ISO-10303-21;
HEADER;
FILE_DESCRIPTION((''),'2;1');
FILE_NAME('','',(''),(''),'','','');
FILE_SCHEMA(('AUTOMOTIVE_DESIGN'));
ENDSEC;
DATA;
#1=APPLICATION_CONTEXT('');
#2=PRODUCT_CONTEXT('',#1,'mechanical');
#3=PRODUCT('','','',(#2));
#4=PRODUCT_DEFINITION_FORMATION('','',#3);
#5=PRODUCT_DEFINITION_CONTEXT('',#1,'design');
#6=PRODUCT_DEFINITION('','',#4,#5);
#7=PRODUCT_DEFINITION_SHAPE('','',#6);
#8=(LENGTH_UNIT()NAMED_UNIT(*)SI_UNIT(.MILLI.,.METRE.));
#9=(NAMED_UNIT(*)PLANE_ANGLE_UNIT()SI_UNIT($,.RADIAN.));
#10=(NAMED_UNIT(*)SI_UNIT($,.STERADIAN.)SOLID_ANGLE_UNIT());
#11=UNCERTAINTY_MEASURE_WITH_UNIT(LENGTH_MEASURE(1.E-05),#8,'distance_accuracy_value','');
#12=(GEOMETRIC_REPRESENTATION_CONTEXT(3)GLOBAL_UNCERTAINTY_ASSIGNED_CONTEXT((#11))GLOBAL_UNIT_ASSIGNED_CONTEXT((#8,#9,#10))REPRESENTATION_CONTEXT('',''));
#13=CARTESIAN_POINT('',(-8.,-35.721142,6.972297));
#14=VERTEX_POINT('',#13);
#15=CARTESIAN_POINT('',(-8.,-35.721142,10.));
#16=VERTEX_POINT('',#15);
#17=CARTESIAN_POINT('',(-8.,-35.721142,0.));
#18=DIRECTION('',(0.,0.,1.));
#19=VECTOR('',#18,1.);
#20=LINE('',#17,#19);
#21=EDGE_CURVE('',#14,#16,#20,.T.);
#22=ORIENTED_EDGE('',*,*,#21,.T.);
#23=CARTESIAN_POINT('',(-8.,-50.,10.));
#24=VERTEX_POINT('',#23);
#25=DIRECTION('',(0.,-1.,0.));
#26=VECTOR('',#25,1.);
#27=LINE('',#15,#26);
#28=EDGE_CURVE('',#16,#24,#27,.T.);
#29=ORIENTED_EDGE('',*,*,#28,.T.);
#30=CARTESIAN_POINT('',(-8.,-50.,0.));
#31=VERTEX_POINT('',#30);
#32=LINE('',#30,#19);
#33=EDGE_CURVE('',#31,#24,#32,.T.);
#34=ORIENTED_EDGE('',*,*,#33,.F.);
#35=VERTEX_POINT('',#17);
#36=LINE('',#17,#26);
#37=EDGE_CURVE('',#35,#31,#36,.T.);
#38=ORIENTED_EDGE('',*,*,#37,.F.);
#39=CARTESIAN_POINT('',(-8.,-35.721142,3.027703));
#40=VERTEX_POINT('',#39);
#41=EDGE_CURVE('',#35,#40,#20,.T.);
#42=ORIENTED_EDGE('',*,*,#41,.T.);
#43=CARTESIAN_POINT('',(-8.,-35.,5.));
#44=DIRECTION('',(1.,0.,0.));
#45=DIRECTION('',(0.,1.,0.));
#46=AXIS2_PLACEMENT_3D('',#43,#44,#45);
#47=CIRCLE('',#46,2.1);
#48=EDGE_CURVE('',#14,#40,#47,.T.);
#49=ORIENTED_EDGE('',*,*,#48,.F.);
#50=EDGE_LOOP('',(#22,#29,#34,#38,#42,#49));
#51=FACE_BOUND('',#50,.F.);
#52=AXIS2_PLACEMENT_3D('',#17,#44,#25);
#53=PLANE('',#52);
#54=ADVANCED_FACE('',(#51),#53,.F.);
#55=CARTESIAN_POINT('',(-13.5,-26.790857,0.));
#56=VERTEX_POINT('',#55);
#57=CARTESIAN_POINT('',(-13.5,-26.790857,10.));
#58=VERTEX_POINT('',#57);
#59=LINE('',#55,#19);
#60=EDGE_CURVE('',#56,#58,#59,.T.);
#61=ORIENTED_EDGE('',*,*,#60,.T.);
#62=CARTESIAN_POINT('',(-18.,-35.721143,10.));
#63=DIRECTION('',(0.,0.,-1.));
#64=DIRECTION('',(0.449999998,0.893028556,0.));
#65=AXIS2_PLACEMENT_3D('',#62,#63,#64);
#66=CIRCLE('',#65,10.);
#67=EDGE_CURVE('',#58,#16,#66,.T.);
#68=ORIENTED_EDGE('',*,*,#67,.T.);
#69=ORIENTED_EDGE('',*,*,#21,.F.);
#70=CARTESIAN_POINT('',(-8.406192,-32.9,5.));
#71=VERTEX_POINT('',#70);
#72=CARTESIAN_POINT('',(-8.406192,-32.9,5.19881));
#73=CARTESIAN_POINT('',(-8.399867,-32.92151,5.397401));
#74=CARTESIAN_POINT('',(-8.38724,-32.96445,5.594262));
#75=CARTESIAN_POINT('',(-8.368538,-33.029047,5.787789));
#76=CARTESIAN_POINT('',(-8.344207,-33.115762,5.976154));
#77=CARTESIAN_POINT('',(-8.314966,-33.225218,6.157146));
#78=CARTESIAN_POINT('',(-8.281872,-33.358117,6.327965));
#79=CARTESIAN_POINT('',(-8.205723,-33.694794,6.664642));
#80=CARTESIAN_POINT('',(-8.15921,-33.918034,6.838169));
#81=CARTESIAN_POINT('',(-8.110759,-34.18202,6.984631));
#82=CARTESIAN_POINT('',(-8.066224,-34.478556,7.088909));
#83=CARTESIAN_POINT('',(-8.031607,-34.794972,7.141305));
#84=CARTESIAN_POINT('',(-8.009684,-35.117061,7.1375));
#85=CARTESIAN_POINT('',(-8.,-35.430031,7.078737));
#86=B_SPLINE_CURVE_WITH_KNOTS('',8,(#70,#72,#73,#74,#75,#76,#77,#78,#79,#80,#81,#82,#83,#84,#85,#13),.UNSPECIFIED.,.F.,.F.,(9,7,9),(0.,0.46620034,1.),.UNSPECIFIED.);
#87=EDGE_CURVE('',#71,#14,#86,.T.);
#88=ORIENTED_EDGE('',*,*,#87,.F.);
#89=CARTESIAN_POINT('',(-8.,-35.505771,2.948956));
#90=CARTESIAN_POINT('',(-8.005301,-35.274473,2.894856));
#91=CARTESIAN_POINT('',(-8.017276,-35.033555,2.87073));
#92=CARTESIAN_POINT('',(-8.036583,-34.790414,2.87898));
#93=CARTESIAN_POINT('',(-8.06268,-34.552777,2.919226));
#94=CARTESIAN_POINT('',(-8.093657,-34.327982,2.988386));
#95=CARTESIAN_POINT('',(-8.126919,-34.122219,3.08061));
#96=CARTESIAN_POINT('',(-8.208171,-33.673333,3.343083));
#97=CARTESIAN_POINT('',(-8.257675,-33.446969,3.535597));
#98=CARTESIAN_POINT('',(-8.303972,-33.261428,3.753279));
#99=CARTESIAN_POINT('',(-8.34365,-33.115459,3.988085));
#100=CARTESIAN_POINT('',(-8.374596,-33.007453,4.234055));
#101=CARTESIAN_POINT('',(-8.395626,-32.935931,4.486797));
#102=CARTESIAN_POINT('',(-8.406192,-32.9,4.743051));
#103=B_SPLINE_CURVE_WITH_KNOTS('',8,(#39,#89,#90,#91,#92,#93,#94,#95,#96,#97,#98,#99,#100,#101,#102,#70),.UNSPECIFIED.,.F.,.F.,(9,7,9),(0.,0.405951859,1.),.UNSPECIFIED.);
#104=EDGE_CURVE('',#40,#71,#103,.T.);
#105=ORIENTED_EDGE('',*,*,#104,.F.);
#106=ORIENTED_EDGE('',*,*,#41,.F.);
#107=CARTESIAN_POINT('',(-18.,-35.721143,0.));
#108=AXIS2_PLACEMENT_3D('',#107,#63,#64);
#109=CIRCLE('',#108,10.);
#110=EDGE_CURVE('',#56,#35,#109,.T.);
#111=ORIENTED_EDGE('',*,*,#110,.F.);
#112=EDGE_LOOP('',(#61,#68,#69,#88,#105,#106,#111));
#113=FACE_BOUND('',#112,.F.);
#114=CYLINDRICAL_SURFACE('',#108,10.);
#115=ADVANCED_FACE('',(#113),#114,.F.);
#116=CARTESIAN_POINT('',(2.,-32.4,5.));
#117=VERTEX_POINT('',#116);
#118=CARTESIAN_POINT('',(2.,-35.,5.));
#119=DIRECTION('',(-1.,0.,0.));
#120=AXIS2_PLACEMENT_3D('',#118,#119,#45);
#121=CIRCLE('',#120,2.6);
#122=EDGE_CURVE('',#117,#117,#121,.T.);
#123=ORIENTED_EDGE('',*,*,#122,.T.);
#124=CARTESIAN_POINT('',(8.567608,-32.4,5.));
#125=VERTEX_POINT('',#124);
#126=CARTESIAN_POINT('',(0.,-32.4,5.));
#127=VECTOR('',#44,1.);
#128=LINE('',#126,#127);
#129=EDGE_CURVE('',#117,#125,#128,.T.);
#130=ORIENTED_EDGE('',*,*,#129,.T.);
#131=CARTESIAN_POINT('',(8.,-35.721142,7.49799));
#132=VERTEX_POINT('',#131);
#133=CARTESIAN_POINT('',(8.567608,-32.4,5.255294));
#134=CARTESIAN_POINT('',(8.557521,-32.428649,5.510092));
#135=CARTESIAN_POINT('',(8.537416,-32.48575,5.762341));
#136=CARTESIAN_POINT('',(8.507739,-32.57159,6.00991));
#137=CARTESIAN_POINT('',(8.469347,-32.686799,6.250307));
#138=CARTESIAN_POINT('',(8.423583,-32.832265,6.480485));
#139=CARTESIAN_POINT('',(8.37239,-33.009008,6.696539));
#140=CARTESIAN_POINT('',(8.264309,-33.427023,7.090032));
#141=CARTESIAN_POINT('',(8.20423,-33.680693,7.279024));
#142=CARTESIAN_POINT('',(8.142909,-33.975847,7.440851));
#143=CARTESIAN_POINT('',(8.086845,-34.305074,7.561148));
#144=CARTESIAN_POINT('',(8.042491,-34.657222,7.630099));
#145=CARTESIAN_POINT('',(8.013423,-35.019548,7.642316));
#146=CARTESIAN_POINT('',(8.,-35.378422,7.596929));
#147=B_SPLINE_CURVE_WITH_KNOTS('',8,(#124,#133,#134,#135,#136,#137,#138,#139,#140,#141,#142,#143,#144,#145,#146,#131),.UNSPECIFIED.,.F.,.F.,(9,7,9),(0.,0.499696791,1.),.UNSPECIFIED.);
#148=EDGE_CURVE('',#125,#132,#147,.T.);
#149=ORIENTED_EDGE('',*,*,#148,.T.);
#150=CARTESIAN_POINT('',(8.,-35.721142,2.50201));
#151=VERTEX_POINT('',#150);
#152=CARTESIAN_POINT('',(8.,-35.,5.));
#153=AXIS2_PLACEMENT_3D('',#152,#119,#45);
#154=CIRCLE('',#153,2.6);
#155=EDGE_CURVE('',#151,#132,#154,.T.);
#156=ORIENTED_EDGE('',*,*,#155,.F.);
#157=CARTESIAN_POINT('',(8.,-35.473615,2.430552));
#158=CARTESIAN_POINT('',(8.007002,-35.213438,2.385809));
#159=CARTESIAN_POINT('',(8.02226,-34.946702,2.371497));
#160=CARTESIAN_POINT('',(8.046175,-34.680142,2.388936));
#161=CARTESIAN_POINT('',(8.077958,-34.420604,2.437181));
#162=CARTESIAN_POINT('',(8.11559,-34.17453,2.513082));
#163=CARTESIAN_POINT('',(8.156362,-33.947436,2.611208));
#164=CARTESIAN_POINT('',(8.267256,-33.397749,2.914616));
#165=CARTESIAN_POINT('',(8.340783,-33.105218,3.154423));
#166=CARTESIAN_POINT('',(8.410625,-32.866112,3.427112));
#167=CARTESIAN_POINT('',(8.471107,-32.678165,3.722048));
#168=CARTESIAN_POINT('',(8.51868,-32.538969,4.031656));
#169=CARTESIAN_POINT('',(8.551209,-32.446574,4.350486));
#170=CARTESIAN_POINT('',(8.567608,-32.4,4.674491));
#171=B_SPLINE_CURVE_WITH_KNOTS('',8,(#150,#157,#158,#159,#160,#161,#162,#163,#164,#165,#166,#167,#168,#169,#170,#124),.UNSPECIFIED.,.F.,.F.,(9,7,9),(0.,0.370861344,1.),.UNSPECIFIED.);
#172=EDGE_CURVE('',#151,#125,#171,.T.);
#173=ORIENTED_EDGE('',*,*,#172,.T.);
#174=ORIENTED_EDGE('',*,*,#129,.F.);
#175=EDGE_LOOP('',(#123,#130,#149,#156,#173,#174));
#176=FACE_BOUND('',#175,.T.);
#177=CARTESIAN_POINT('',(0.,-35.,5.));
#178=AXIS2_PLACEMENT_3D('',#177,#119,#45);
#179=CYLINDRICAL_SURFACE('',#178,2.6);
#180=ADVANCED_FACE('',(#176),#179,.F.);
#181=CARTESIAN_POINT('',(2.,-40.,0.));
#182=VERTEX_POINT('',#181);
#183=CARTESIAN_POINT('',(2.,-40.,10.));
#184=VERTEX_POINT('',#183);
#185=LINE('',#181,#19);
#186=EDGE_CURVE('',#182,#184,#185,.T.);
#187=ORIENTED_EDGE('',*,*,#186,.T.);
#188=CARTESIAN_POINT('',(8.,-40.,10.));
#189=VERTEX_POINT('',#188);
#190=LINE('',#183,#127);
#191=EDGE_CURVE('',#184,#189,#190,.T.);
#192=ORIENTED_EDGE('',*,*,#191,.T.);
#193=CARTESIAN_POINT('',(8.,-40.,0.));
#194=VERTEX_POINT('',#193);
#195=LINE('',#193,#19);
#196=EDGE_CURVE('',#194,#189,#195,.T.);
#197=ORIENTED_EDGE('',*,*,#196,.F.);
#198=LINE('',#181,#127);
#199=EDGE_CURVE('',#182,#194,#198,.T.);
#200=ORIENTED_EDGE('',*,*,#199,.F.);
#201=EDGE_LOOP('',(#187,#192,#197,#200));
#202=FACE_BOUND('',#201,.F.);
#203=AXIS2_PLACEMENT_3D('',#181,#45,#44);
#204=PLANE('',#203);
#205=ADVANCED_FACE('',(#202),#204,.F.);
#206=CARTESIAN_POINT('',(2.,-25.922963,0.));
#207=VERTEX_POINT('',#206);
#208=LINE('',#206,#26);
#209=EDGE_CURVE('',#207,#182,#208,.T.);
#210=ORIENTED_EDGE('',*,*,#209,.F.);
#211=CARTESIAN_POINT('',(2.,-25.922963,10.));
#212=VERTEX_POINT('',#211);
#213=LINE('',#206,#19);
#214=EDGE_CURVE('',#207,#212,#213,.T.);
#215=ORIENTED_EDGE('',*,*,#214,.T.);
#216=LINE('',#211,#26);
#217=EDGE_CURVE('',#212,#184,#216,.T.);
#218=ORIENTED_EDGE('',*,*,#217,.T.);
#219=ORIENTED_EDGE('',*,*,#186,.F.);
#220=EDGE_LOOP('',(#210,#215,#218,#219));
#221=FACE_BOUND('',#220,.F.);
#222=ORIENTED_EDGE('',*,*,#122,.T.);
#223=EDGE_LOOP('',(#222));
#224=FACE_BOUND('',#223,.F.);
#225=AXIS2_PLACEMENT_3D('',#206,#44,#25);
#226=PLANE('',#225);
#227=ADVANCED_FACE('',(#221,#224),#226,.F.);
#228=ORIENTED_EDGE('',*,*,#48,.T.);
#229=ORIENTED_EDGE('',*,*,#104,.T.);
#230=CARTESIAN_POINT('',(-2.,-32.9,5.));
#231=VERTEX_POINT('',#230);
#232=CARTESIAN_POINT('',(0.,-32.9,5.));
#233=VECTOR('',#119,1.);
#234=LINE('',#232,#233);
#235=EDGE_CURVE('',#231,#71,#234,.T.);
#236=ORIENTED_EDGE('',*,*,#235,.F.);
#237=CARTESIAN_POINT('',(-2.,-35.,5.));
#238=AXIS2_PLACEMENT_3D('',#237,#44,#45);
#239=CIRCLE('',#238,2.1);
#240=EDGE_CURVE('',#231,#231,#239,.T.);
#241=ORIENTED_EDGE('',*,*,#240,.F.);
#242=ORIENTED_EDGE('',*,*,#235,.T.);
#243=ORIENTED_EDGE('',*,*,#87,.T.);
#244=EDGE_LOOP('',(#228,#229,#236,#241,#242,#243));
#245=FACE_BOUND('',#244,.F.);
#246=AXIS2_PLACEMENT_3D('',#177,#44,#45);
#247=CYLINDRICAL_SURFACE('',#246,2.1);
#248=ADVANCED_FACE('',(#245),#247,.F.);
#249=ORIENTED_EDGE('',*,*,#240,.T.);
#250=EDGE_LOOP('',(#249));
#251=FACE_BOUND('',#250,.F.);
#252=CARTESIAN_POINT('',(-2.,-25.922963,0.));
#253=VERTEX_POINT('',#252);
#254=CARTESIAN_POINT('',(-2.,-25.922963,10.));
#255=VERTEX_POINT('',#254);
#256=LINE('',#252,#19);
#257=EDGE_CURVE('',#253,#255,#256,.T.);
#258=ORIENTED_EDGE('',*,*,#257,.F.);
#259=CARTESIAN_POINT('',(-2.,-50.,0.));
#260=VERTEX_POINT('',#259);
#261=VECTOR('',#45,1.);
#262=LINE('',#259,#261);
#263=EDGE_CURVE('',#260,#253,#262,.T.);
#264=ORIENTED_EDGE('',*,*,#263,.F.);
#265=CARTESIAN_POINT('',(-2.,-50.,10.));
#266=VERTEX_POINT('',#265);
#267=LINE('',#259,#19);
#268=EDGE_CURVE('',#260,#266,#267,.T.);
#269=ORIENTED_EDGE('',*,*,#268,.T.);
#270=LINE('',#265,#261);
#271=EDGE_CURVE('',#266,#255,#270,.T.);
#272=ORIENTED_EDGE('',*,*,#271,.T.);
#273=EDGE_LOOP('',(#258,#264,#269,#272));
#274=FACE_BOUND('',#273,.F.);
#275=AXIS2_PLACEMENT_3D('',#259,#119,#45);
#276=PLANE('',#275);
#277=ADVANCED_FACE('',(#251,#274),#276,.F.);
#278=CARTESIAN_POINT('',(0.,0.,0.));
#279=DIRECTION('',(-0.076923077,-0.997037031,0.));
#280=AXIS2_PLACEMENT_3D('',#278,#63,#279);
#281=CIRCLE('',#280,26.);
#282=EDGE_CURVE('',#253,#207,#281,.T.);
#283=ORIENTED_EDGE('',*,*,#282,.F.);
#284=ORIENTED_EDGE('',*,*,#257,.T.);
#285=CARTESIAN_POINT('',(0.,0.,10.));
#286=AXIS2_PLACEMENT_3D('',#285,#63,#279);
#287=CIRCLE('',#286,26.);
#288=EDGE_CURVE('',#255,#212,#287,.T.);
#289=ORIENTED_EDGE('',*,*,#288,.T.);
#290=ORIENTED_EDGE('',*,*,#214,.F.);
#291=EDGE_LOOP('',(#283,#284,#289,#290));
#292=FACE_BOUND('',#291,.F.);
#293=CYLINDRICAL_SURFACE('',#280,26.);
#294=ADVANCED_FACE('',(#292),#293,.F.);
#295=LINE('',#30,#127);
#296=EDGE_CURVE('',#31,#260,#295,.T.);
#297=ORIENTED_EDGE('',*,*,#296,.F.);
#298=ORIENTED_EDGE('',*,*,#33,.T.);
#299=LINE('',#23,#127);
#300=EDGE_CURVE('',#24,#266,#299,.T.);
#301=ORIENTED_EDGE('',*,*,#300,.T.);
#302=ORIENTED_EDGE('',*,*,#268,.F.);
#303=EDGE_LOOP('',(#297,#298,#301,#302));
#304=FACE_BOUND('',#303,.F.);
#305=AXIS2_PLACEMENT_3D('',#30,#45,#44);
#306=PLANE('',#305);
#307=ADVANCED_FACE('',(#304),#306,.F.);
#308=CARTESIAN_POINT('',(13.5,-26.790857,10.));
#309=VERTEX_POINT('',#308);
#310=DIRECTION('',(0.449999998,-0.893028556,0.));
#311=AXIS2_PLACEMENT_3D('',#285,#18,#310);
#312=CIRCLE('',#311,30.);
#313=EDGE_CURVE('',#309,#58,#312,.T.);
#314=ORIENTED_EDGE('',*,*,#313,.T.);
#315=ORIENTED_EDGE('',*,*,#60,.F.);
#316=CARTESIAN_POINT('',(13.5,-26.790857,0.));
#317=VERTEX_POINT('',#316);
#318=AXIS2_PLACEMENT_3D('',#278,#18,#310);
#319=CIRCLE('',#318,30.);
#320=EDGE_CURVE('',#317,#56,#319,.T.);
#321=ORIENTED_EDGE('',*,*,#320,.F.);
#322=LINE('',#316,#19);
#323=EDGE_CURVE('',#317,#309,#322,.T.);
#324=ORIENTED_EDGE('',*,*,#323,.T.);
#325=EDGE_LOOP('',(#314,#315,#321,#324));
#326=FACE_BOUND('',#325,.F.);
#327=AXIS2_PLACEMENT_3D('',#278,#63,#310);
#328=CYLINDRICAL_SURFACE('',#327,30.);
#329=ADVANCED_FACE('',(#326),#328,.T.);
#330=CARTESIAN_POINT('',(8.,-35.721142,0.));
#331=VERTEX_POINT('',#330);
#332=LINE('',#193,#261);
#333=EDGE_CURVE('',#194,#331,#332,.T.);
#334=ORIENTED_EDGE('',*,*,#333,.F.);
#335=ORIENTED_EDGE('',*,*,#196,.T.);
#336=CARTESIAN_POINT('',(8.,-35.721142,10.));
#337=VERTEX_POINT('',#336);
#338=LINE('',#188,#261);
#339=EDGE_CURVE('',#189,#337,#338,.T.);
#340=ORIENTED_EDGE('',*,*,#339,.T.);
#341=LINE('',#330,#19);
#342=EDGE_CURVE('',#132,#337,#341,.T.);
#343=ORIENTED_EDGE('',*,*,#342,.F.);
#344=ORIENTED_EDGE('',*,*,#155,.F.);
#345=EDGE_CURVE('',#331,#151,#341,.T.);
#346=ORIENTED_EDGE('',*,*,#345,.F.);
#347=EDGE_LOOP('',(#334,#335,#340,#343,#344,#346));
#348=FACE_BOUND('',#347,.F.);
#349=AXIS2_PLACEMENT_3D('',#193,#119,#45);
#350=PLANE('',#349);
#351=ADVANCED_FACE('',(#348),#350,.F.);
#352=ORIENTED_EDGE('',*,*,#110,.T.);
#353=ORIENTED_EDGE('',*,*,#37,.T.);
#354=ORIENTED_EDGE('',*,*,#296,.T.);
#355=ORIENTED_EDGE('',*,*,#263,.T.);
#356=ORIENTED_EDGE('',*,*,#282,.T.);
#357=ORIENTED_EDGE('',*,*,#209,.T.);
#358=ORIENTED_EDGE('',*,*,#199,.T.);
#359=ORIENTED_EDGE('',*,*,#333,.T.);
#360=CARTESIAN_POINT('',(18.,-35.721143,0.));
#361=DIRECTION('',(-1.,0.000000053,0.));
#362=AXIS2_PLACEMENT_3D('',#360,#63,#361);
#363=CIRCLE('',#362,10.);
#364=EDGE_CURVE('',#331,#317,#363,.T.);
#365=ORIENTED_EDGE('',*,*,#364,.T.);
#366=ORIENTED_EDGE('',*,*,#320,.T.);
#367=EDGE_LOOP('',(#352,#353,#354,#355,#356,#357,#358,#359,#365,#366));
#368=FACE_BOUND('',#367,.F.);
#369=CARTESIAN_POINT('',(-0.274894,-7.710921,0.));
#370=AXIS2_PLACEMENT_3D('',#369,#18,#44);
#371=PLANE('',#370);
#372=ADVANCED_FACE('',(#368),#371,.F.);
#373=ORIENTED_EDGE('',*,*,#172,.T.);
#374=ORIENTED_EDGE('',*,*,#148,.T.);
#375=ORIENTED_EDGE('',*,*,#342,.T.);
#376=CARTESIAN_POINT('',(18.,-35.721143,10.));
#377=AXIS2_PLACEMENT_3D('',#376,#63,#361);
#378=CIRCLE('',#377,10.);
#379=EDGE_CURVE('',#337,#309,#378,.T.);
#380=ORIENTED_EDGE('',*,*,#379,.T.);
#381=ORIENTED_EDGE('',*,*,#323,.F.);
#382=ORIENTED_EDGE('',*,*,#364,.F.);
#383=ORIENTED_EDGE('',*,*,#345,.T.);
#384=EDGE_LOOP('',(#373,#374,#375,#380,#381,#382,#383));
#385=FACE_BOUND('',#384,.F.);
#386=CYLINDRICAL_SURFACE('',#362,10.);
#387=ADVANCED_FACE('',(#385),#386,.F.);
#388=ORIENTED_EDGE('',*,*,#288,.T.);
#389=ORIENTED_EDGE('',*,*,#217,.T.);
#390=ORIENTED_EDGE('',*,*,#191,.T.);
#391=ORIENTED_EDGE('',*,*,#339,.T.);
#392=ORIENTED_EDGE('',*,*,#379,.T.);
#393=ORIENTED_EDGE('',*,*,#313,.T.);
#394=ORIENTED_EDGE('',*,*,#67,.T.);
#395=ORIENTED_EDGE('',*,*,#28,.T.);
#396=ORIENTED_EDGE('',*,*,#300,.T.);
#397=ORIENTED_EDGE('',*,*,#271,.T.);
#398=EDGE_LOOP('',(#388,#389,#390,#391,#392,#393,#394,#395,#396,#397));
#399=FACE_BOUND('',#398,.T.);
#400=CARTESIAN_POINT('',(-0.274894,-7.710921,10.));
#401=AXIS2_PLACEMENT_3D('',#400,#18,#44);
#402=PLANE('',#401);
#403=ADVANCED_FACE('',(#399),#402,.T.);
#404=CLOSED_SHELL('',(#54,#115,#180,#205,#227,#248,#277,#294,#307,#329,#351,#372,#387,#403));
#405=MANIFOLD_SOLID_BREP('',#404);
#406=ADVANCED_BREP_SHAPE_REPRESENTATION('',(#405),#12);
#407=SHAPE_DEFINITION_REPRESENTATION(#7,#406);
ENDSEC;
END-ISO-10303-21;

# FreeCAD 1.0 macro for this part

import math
import FreeCAD as App
import Part
import Sketcher
Q = App.Units.Quantity

doc = App.newDocument("Part")
body = doc.addObject("PartDesign::Body", "Body")

sketch1 = body.newObject("Sketcher::SketchObject", "Sketch")
sketch1.AttachmentSupport = (doc.getObject("XY_Plane"), [""])
sketch1.MapMode = "FlatFace"
sketch1.addGeometry([
    Part.ArcOfCircle(Part.Circle(App.Vector(0, 0, 0), App.Vector(0, 0, 1), 26), math.radians(-86), math.radians(266)),
    Part.LineSegment(App.Vector(2, -25.9, 0), App.Vector(2, -40, 0)),
    Part.LineSegment(App.Vector(2, -40, 0), App.Vector(8, -40, 0)),
    Part.LineSegment(App.Vector(8, -40, 0), App.Vector(8, -35.7, 0)),
    Part.ArcOfCircle(Part.Circle(App.Vector(18, -35.7, 0), App.Vector(0, 0, 1), 10), math.radians(117), math.radians(180)),
    Part.ArcOfCircle(Part.Circle(App.Vector(0, 0, 0), App.Vector(0, 0, 1), 30), math.radians(-63), math.radians(243)),
    Part.ArcOfCircle(Part.Circle(App.Vector(-18, -35.7, 0), App.Vector(0, 0, 1), 10), math.radians(0), math.radians(63)),
    Part.LineSegment(App.Vector(-8, -35.7, 0), App.Vector(-8, -50, 0)),
    Part.LineSegment(App.Vector(-8, -50, 0), App.Vector(-2, -50, 0)),
    Part.LineSegment(App.Vector(-2, -50, 0), App.Vector(-2, -25.9, 0)),
], False)
sketch1.addConstraint([
    Sketcher.Constraint("Coincident", 0, 1, 1, 1),
    Sketcher.Constraint("Coincident", 1, 2, 2, 1),
    Sketcher.Constraint("Coincident", 2, 2, 3, 1),
    Sketcher.Constraint("Tangent", 3, 2, 4, 2),
    Sketcher.Constraint("Tangent", 4, 1, 5, 1),
    Sketcher.Constraint("Tangent", 5, 2, 6, 2),
    Sketcher.Constraint("Tangent", 6, 1, 7, 1),
    Sketcher.Constraint("Coincident", 7, 2, 8, 1),
    Sketcher.Constraint("Coincident", 8, 2, 9, 1),
    Sketcher.Constraint("Coincident", 9, 2, 0, 2),
    Sketcher.Constraint("Vertical", 1),
    Sketcher.Constraint("Horizontal", 2),
    Sketcher.Constraint("Vertical", 3),
    Sketcher.Constraint("Vertical", 7),
    Sketcher.Constraint("Horizontal", 8),
    Sketcher.Constraint("Vertical", 9),
    Sketcher.Constraint("Coincident", 0, 3, -1, 1),
    Sketcher.Constraint("Coincident", 5, 3, -1, 1),
    Sketcher.Constraint("Equal", 4, 6),
    Sketcher.Constraint("Horizontal", 4, 3, 6, 3),
    Sketcher.Constraint("Horizontal", 0, 1, 9, 2),
    Sketcher.Constraint("Radius", 0, Q("26 mm")),
    Sketcher.Constraint("Radius", 4, Q("10 mm")),
    Sketcher.Constraint("Radius", 5, Q("30 mm")),
    Sketcher.Constraint("DistanceX", 2, 1, 2, 2, Q("6 mm")),
    Sketcher.Constraint("DistanceX", -1, 1, 4, 3, Q("18 mm")),
    Sketcher.Constraint("DistanceY", 1, 2, -1, 1, Q("40 mm")),
    Sketcher.Constraint("DistanceY", 7, 2, -1, 1, Q("50 mm")),
])
pad1 = body.newObject("PartDesign::Pad", "Pad")
pad1.Profile = sketch1
pad1.Length = 10

sketch2 = body.newObject("Sketcher::SketchObject", "Sketch001")
sketch2.AttachmentSupport = (doc.getObject("YZ_Plane"), [""])
sketch2.MapMode = "FlatFace"
sketch2.addGeometry(Part.Circle(App.Vector(-35, 5, 0), App.Vector(0, 0, 1), 2.1), False)
sketch2.addConstraint([
    Sketcher.Constraint("Diameter", 0, Q("4.2 mm")),
    Sketcher.Constraint("DistanceX", 0, 3, -1, 1, Q("35 mm")),
    Sketcher.Constraint("DistanceY", -1, 1, 0, 3, Q("5 mm")),
])
pocket1 = body.newObject("PartDesign::Pocket", "Pocket")
pocket1.Profile = sketch2
pocket1.Length = 25

sketch3 = body.newObject("Sketcher::SketchObject", "Sketch002")
sketch3.AttachmentSupport = (doc.getObject("YZ_Plane"), [""])
sketch3.MapMode = "FlatFace"
sketch3.addGeometry(Part.Circle(App.Vector(-35, 5, 0), App.Vector(0, 0, 1), 2.6), False)
sketch3.addConstraint([
    Sketcher.Constraint("Diameter", 0, Q("5.2 mm")),
    Sketcher.Constraint("DistanceX", 0, 3, -1, 1, Q("35 mm")),
    Sketcher.Constraint("DistanceY", -1, 1, 0, 3, Q("5 mm")),
])
pocket2 = body.newObject("PartDesign::Pocket", "Pocket001")
pocket2.Profile = sketch3
pocket2.Length = 25
pocket2.Reversed = True

doc.recompute()
